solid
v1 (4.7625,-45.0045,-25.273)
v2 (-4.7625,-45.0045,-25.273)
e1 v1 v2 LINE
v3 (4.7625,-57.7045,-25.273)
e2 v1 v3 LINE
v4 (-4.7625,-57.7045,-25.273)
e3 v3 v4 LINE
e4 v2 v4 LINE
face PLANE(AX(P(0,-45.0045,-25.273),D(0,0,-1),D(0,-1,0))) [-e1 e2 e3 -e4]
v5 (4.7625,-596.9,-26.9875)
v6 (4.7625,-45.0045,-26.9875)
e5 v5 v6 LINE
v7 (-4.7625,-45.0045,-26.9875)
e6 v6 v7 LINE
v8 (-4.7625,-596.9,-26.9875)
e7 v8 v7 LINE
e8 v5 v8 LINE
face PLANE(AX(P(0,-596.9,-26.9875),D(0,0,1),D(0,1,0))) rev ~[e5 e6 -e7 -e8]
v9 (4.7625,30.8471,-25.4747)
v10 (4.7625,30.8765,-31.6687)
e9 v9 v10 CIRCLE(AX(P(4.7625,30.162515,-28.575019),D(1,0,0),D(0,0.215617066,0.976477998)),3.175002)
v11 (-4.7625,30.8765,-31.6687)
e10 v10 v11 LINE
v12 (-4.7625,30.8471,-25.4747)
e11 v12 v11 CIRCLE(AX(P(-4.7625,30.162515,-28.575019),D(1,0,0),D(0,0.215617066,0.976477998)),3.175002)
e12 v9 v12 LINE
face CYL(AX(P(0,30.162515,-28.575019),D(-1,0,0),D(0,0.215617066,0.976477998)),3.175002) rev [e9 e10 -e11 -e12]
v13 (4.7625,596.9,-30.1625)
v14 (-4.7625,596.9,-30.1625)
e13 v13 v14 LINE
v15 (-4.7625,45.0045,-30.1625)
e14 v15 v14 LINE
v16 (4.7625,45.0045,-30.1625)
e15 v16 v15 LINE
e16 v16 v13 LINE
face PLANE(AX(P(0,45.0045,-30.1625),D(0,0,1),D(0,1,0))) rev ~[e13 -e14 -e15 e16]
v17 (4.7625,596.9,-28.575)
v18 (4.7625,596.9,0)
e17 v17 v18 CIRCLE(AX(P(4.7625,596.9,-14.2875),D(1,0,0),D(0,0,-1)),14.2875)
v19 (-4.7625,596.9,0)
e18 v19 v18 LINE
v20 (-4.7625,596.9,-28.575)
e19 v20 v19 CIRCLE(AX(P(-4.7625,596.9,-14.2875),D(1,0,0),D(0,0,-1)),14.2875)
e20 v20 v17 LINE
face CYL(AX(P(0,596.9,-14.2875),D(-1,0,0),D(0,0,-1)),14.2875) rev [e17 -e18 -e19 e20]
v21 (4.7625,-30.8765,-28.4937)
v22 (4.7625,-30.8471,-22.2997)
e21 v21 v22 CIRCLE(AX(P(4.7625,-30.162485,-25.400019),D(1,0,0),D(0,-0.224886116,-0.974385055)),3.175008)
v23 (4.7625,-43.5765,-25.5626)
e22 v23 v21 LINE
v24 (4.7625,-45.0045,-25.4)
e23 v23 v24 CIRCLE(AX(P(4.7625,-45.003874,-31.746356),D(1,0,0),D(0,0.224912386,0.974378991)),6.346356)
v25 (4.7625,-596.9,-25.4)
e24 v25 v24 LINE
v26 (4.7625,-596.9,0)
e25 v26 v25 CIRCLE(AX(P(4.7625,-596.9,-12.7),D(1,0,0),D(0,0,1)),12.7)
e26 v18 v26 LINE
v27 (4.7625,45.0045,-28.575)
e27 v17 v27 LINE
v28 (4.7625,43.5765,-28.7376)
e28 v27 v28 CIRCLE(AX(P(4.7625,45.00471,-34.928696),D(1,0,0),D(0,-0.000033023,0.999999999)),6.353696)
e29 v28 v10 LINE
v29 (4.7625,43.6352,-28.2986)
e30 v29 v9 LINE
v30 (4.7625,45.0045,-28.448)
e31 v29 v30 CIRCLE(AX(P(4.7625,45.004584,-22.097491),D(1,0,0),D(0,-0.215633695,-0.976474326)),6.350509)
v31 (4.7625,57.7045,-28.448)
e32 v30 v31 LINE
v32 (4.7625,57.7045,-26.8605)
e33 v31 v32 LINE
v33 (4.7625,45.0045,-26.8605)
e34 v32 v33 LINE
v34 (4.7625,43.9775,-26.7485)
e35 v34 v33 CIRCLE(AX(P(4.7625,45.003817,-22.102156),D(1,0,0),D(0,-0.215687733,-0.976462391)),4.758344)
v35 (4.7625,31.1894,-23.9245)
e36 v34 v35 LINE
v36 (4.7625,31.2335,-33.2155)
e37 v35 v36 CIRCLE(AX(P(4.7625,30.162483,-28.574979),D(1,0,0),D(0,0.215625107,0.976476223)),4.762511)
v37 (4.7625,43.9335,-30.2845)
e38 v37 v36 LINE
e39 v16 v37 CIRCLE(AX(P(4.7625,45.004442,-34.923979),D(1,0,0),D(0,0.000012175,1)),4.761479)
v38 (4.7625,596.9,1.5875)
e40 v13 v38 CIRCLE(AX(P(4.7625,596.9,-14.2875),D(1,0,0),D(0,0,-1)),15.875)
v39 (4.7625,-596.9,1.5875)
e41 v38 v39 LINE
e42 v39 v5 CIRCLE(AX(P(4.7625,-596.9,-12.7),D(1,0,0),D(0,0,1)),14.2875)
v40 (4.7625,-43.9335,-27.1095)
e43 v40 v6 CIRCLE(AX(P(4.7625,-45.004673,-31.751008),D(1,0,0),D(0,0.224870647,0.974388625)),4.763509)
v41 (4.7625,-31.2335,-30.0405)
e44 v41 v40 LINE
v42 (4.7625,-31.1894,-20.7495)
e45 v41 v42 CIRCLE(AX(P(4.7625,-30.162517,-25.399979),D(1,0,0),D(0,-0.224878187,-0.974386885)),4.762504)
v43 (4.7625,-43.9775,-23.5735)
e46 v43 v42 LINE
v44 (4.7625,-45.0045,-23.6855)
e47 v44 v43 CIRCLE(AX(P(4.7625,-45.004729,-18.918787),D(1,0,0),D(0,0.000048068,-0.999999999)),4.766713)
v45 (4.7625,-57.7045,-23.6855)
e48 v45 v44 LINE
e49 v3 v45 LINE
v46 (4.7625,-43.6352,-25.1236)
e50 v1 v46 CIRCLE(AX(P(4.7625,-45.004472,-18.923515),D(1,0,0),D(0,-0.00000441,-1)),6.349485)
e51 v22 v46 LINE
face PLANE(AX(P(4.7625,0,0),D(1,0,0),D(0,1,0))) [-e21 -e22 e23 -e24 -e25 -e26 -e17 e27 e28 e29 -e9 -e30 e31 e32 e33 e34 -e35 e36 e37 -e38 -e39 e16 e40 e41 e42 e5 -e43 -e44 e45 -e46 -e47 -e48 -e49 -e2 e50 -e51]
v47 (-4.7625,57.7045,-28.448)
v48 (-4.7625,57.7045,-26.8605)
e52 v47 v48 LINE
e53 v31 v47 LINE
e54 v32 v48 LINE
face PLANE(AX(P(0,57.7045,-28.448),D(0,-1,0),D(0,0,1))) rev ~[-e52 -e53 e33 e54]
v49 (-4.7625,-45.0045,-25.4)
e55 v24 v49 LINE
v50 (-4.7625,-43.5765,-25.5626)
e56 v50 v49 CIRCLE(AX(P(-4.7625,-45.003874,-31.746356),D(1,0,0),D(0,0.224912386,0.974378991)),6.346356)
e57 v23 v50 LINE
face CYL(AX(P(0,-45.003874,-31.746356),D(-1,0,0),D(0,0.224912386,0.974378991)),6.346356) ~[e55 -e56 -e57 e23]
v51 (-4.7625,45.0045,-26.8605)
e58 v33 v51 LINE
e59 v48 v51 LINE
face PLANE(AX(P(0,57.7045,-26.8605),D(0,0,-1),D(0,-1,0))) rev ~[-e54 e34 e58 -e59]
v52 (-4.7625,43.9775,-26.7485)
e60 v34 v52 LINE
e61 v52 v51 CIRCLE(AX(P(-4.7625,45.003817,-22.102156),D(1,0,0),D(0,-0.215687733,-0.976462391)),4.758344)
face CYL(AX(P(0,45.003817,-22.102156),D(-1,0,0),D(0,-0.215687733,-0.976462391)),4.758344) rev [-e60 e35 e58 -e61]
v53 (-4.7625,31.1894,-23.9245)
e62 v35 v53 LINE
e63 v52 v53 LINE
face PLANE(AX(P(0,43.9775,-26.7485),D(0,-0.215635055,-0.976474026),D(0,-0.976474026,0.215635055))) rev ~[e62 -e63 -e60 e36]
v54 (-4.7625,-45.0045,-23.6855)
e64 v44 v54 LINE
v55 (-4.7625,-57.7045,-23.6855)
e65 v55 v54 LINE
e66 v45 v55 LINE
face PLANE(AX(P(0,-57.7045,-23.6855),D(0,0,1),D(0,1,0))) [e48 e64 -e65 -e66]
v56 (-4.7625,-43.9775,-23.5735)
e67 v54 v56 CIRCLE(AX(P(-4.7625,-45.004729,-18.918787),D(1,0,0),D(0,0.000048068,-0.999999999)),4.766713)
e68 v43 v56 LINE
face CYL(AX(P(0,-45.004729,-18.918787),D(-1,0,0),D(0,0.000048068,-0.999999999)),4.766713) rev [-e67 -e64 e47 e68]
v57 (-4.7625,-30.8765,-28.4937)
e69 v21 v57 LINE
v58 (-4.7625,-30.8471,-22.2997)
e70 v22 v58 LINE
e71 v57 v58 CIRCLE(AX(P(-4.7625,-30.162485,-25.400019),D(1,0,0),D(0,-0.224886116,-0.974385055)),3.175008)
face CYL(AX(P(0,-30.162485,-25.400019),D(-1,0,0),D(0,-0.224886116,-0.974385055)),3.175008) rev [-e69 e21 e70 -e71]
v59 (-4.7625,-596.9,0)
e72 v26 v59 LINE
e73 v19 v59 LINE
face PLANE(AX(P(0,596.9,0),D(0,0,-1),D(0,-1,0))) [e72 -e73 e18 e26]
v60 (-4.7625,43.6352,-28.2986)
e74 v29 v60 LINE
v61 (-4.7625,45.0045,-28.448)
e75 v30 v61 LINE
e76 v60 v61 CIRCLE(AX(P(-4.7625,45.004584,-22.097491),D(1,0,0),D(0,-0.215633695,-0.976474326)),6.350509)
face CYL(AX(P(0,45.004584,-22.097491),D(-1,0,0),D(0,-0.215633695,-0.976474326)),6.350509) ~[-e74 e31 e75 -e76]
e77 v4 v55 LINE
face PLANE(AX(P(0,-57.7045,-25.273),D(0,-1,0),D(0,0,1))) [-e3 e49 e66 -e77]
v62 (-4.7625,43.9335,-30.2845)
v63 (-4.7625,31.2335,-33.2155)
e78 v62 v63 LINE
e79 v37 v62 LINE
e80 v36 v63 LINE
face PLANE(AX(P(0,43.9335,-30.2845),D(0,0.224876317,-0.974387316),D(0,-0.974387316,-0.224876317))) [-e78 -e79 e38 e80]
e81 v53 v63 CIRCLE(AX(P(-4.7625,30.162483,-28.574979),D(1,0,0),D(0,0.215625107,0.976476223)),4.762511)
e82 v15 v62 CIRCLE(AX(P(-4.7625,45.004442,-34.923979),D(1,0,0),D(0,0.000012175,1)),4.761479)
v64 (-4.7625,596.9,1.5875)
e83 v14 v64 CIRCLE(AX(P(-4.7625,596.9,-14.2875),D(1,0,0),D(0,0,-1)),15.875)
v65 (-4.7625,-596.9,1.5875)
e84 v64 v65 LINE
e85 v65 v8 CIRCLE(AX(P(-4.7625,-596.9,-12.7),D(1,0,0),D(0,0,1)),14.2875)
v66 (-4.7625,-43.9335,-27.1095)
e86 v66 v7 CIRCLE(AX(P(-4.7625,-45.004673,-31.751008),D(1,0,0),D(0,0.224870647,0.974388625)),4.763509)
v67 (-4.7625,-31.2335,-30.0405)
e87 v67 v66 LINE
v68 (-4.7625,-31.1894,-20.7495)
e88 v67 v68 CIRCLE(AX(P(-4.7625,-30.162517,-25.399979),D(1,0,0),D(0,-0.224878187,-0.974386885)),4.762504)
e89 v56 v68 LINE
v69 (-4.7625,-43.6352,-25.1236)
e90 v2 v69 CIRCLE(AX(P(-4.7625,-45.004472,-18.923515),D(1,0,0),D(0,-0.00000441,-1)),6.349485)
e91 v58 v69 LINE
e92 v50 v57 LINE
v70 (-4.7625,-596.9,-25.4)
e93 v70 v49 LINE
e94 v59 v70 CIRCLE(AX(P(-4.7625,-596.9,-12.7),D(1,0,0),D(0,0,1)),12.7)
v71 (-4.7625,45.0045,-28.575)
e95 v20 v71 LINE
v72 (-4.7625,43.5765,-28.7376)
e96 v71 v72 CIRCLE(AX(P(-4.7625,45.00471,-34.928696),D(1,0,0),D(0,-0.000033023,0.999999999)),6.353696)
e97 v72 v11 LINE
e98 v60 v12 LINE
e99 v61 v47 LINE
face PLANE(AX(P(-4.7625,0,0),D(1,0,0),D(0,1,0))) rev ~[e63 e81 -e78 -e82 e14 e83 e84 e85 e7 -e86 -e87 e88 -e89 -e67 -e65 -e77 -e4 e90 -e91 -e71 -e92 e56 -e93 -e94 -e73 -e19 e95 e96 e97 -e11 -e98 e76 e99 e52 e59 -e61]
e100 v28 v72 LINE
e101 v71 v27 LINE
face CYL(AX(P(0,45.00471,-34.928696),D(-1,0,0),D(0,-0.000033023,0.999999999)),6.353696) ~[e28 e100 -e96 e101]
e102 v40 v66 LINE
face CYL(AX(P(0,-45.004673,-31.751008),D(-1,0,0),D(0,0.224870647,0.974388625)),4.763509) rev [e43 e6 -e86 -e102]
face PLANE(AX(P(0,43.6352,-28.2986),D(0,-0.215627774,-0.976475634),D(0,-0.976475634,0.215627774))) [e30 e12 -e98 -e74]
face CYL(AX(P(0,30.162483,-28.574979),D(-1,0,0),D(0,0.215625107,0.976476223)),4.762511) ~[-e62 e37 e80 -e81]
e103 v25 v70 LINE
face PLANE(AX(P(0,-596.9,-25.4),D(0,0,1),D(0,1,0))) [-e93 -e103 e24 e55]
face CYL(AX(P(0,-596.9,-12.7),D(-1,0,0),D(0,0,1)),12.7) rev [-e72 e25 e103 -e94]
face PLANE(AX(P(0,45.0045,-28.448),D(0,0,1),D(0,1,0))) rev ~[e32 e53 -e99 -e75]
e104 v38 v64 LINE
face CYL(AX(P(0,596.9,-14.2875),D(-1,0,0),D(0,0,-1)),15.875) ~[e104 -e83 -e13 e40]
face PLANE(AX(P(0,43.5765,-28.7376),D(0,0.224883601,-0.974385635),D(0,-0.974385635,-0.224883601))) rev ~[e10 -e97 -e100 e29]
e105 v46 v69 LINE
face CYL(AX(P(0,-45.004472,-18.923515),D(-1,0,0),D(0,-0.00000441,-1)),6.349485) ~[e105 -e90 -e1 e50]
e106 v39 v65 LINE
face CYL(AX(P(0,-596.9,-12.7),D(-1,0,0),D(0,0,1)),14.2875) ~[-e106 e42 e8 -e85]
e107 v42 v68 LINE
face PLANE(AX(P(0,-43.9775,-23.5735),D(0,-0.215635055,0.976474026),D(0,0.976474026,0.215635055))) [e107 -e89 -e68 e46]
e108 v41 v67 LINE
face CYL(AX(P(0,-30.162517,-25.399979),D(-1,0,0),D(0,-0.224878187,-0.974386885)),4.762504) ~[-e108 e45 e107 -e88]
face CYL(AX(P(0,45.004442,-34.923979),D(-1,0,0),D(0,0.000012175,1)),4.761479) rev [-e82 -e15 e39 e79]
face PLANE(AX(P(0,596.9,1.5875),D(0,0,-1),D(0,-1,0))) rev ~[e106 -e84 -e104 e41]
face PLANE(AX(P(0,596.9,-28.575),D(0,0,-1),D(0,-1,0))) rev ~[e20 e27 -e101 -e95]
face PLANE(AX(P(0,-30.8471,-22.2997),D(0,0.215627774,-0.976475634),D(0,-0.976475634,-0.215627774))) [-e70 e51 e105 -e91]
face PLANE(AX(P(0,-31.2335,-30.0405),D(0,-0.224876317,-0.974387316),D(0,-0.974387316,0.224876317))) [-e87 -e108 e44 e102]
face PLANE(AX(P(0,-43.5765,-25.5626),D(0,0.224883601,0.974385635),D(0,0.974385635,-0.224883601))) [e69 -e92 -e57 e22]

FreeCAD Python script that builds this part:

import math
import FreeCAD as App
import Part
import Sketcher
Q = App.Units.Quantity

doc = App.newDocument("Part")
body = doc.addObject("PartDesign::Body", "Body")

# Sketch on YZ plane
sketch1 = body.newObject("Sketcher::SketchObject", "Sketch")
sketch1.AttachmentSupport = (doc.getObject("YZ_Plane"), [""])
sketch1.MapMode = "FlatFace"
sketch1.addGeometry([
    Part.LineSegment(App.Vector(-596.9, 0, 0), App.Vector(596.9, 0, 0)),  # 0
    Part.ArcOfCircle(Part.Circle(App.Vector(596.9, -14.2875, 0), App.Vector(0, 0, 1), 14.2875), math.radians(-90), math.radians(90)),  # 1
    Part.LineSegment(App.Vector(596.9, -28.575, 0), App.Vector(45.0045, -28.575, 0)),  # 2
    Part.ArcOfCircle(Part.Circle(App.Vector(45.00471, -34.928696, 0), App.Vector(0, 0, 1), 6.353696), math.radians(90.001892), math.radians(102.990182)),  # 3
    Part.LineSegment(App.Vector(43.5765, -28.7376, 0), App.Vector(30.8765, -31.6687, 0)),  # 4
    Part.ArcOfCircle(Part.Circle(App.Vector(30.1625, -28.575, 0), App.Vector(0, 0, 1), 3.174986), math.radians(77.547921), math.radians(282.995834)),  # 5
    Part.LineSegment(App.Vector(30.8471, -25.4747, 0), App.Vector(43.6352, -28.2986, 0)),  # 6
    Part.ArcOfCircle(Part.Circle(App.Vector(45.0045, -22.098, 0), App.Vector(0, 0, 1), 6.349994), math.radians(-102.45296), math.radians(-90)),  # 7
    Part.LineSegment(App.Vector(45.0045, -28.448, 0), App.Vector(57.7045, -28.448, 0)),  # 8
    Part.LineSegment(App.Vector(57.7045, -28.448, 0), App.Vector(57.7045, -26.8605, 0)),  # 9
    Part.LineSegment(App.Vector(57.7045, -26.8605, 0), App.Vector(45.0045, -26.8605, 0)),  # 10
    Part.ArcOfCircle(Part.Circle(App.Vector(45.003817, -22.102156, 0), App.Vector(0, 0, 1), 4.758344), math.radians(-102.455878), math.radians(-89.99177)),  # 11
    Part.LineSegment(App.Vector(43.9775, -26.7485, 0), App.Vector(31.1894, -23.9245, 0)),  # 12
    Part.ArcOfCircle(Part.Circle(App.Vector(30.1625, -28.575, 0), App.Vector(0, 0, 1), 4.762528), math.radians(77.548051), math.radians(282.995969)),  # 13
    Part.LineSegment(App.Vector(31.2335, -33.2155, 0), App.Vector(43.9335, -30.2845, 0)),  # 14
    Part.ArcOfCircle(Part.Circle(App.Vector(45.004442, -34.923979, 0), App.Vector(0, 0, 1), 4.761479), math.radians(89.999302), math.radians(102.998053)),  # 15
    Part.LineSegment(App.Vector(45.0045, -30.1625, 0), App.Vector(596.9, -30.1625, 0)),  # 16
    Part.ArcOfCircle(Part.Circle(App.Vector(596.9, -14.2875, 0), App.Vector(0, 0, 1), 15.875), math.radians(-90), math.radians(90)),  # 17
    Part.LineSegment(App.Vector(596.9, 1.5875, 0), App.Vector(-596.9, 1.5875, 0)),  # 18
    Part.ArcOfCircle(Part.Circle(App.Vector(-596.9, -12.7, 0), App.Vector(0, 0, 1), 14.2875), math.radians(90), math.radians(270)),  # 19
    Part.LineSegment(App.Vector(-596.9, -26.9875, 0), App.Vector(-45.0045, -26.9875, 0)),  # 20
    Part.ArcOfCircle(Part.Circle(App.Vector(-45.004673, -31.751008, 0), App.Vector(0, 0, 1), 4.763509), math.radians(77.004728), math.radians(89.997916)),  # 21
    Part.LineSegment(App.Vector(-43.9335, -27.1095, 0), App.Vector(-31.2335, -30.0405, 0)),  # 22
    Part.ArcOfCircle(Part.Circle(App.Vector(-30.1625, -25.4, 0), App.Vector(0, 0, 1), 4.762487), math.radians(-102.995969), math.radians(102.451949)),  # 23
    Part.LineSegment(App.Vector(-31.1894, -20.7495, 0), App.Vector(-43.9775, -23.5735, 0)),  # 24
    Part.ArcOfCircle(Part.Circle(App.Vector(-45.004729, -18.918787, 0), App.Vector(0, 0, 1), 4.766713), math.radians(-89.997246), math.radians(-77.555106)),  # 25
    Part.LineSegment(App.Vector(-45.0045, -23.6855, 0), App.Vector(-57.7045, -23.6855, 0)),  # 26
    Part.LineSegment(App.Vector(-57.7045, -23.6855, 0), App.Vector(-57.7045, -25.273, 0)),  # 27
    Part.LineSegment(App.Vector(-57.7045, -25.273, 0), App.Vector(-45.0045, -25.273, 0)),  # 28
    Part.ArcOfCircle(Part.Circle(App.Vector(-45.0045, -18.923, 0), App.Vector(0, 0, 1), 6.35), math.radians(-90), math.radians(-77.54704)),  # 29
    Part.LineSegment(App.Vector(-43.6352, -25.1236, 0), App.Vector(-30.8471, -22.2997, 0)),  # 30
    Part.ArcOfCircle(Part.Circle(App.Vector(-30.1625, -25.4, 0), App.Vector(0, 0, 1), 3.175024), math.radians(-102.995834), math.radians(102.452079)),  # 31
    Part.LineSegment(App.Vector(-30.8765, -28.4937, 0), App.Vector(-43.5765, -25.5626, 0)),  # 32
    Part.ArcOfCircle(Part.Circle(App.Vector(-45.003874, -31.746356, 0), App.Vector(0, 0, 1), 6.346356), math.radians(77.002274), math.radians(90.005652)),  # 33
    Part.LineSegment(App.Vector(-45.0045, -25.4, 0), App.Vector(-596.9, -25.4, 0)),  # 34
    Part.ArcOfCircle(Part.Circle(App.Vector(-596.9, -12.7, 0), App.Vector(0, 0, 1), 12.7), math.radians(90), math.radians(270)),  # 35
], False)
sketch1.addConstraint([
    Sketcher.Constraint("Coincident", 0, 2, 1, 2),
    Sketcher.Constraint("Coincident", 1, 1, 2, 1),
    Sketcher.Constraint("Coincident", 2, 2, 3, 1),
    Sketcher.Constraint("Coincident", 3, 2, 4, 1),
    Sketcher.Constraint("Coincident", 4, 2, 5, 2),
    Sketcher.Constraint("Coincident", 5, 1, 6, 1),
    Sketcher.Constraint("Coincident", 6, 2, 7, 1),
    Sketcher.Constraint("Coincident", 7, 2, 8, 1),
    Sketcher.Constraint("Coincident", 8, 2, 9, 1),
    Sketcher.Constraint("Coincident", 9, 2, 10, 1),
    Sketcher.Constraint("Coincident", 10, 2, 11, 2),
    Sketcher.Constraint("Coincident", 11, 1, 12, 1),
    Sketcher.Constraint("Coincident", 12, 2, 13, 1),
    Sketcher.Constraint("Coincident", 13, 2, 14, 1),
    Sketcher.Constraint("Coincident", 14, 2, 15, 2),
    Sketcher.Constraint("Coincident", 15, 1, 16, 1),
    Sketcher.Constraint("Coincident", 16, 2, 17, 1),
    Sketcher.Constraint("Coincident", 17, 2, 18, 1),
    Sketcher.Constraint("Coincident", 18, 2, 19, 1),
    Sketcher.Constraint("Coincident", 19, 2, 20, 1),
    Sketcher.Constraint("Coincident", 20, 2, 21, 2),
    Sketcher.Constraint("Coincident", 21, 1, 22, 1),
    Sketcher.Constraint("Coincident", 22, 2, 23, 1),
    Sketcher.Constraint("Coincident", 23, 2, 24, 1),
    Sketcher.Constraint("Coincident", 24, 2, 25, 2),
    Sketcher.Constraint("Coincident", 25, 1, 26, 1),
    Sketcher.Constraint("Coincident", 26, 2, 27, 1),
    Sketcher.Constraint("Coincident", 27, 2, 28, 1),
    Sketcher.Constraint("Coincident", 28, 2, 29, 1),
    Sketcher.Constraint("Coincident", 29, 2, 30, 1),
    Sketcher.Constraint("Coincident", 30, 2, 31, 2),
    Sketcher.Constraint("Coincident", 31, 1, 32, 1),
    Sketcher.Constraint("Coincident", 32, 2, 33, 1),
    Sketcher.Constraint("Coincident", 33, 2, 34, 1),
    Sketcher.Constraint("Coincident", 34, 2, 35, 2),
    Sketcher.Constraint("Coincident", 35, 1, 0, 1),
    Sketcher.Constraint("Horizontal", 0),
    Sketcher.Constraint("Horizontal", 2),
    Sketcher.Constraint("Horizontal", 8),
    Sketcher.Constraint("Vertical", 9),
    Sketcher.Constraint("Horizontal", 10),
    Sketcher.Constraint("Horizontal", 16),
    Sketcher.Constraint("Horizontal", 18),
    Sketcher.Constraint("Horizontal", 20),
    Sketcher.Constraint("Horizontal", 26),
    Sketcher.Constraint("Vertical", 27),
    Sketcher.Constraint("Horizontal", 28),
    Sketcher.Constraint("Horizontal", 34),
    Sketcher.Constraint("Coincident", 13, 3, 5, 3),
    Sketcher.Constraint("Coincident", 17, 3, 1, 3),
    Sketcher.Constraint("Coincident", 31, 3, 23, 3),
    Sketcher.Constraint("Coincident", 35, 3, 19, 3),
    Sketcher.Constraint("PointOnObject", 0, 2, -1),
    Sketcher.Constraint("Radius", 35, Q("0.5 in")),
    Sketcher.Constraint("DistanceX", 0, 1, 0, 2, Q("47 in")),
    Sketcher.Constraint("DistanceX", 18, 2, 18, 1, Q("47 in")),
    Sketcher.Constraint("Radius", 7, Q("0.25 in")),
    Sketcher.Constraint("Radius", 29, Q("0.25 in")),
    Sketcher.Constraint("DistanceX", 8, 1, 8, 2, Q("0.5 in")),
    Sketcher.Constraint("DistanceX", 10, 2, 10, 1, Q("0.5 in")),
    Sketcher.Constraint("DistanceX", 26, 2, 26, 1, Q("0.5 in")),
    Sketcher.Constraint("DistanceX", 28, 1, 28, 2, Q("0.5 in")),
    Sketcher.Constraint("Radius", 1, Q("0.5625 in")),
    Sketcher.Constraint("Radius", 5, Q("0.125 in")),
    Sketcher.Constraint("Radius", 19, Q("0.5625 in")),
    Sketcher.Constraint("Radius", 31, Q("0.125 in")),
    Sketcher.Constraint("DistanceX", 4, 2, 3, 2, Q("0.5 in")),
    Sketcher.Constraint("DistanceX", 2, 2, 8, 2, Q("0.5 in")),
    Sketcher.Constraint("DistanceX", 7, 3, 9, 2, Q("0.5 in")),
    Sketcher.Constraint("DistanceX", 21, 1, 22, 2, Q("0.5 in")),
    Sketcher.Constraint("DistanceX", 26, 2, 20, 2, Q("0.5 in")),
    Sketcher.Constraint("DistanceX", 26, 2, 29, 3, Q("0.5 in")),
    Sketcher.Constraint("DistanceX", 26, 2, 25, 3, Q("0.5 in")),
    Sketcher.Constraint("DistanceY", 9, 1, 9, 2, Q("0.0625 in")),
    Sketcher.Constraint("DistanceY", 27, 2, 27, 1, Q("0.0625 in")),
    Sketcher.Constraint("DistanceY", 23, 3, -1, 1, Q("1 in")),
    Sketcher.Constraint("Radius", 13, Q("0.1875 in")),
    Sketcher.Constraint("Radius", 23, Q("0.1875 in")),
    Sketcher.Constraint("DistanceY", 5, 3, 1, 3, Q("0.5625 in")),
    Sketcher.Constraint("DistanceX", 7, 3, 3, 3, Q("0 in")),
    Sketcher.Constraint("DistanceX", 15, 3, 3, 3, Q("0 in")),
    Sketcher.Constraint("DistanceX", 23, 3, 5, 3, Q("2.375 in")),
    Sketcher.Constraint("DistanceX", 21, 3, 29, 3, Q("0 in")),
    Sketcher.Constraint("DistanceY", 2, 2, 7, 2, Q("0.005 in")),
    Sketcher.Constraint("DistanceY", 33, 2, 28, 2, Q("0.005 in")),
    Sketcher.Constraint("DistanceX", -1, 1, 1, 3, Q("23.5 in")),
    Sketcher.Constraint("DistanceX", 19, 3, -1, 1, Q("23.5 in")),
    Sketcher.Constraint("DistanceX", -1, 1, 0, 2, Q("23.5 in")),
    Sketcher.Constraint("DistanceX", -1, 1, 1, 1, Q("23.5 in")),
    Sketcher.Constraint("DistanceX", -1, 1, 16, 2, Q("23.5 in")),
    Sketcher.Constraint("DistanceX", -1, 1, 17, 2, Q("23.5 in")),
    Sketcher.Constraint("DistanceX", 19, 2, -1, 1, Q("23.5 in")),
    Sketcher.Constraint("DistanceX", 34, 2, -1, 1, Q("23.5 in")),
    Sketcher.Constraint("Radius", 3, 6.3537),
    Sketcher.Constraint("Radius", 11, 4.7583),
    Sketcher.Constraint("Radius", 15, 4.7615),
    Sketcher.Constraint("Radius", 21, 4.7635),
    Sketcher.Constraint("Radius", 25, 4.7667),
    Sketcher.Constraint("Radius", 33, 6.3464),
    Sketcher.Constraint("DistanceX", -1, 1, 5, 3, Q("1.1875 in")),
    Sketcher.Constraint("Distance", 6, Q("0.5156 in")),
    Sketcher.Constraint("Distance", 12, Q("0.5156 in")),
    Sketcher.Constraint("Distance", 24, Q("0.5156 in")),
    Sketcher.Constraint("Distance", 30, Q("0.5156 in")),
    Sketcher.Constraint("DistanceX", 2, 2, 2, 1, 551.8955),
    Sketcher.Constraint("DistanceX", 16, 1, 16, 2, 551.8955),
    Sketcher.Constraint("DistanceX", 20, 1, 20, 2, 551.8955),
    Sketcher.Constraint("DistanceX", 34, 2, 34, 1, 551.8955),
    Sketcher.Constraint("DistanceX", -1, 1, 11, 3, Q("1.7718 in")),
    Sketcher.Constraint("DistanceX", 33, 3, -1, 1, Q("1.7718 in")),
    Sketcher.Constraint("DistanceX", -1, 1, 3, 2, Q("1.7156 in")),
    Sketcher.Constraint("DistanceX", -1, 1, 11, 1, Q("1.7314 in")),
    Sketcher.Constraint("DistanceY", 13, 2, -1, 1, Q("1.3077 in")),
    Sketcher.Constraint("DistanceY", 14, 2, -1, 1, Q("1.1923 in")),
    Sketcher.Constraint("DistanceY", 21, 1, -1, 1, Q("1.0673 in")),
    Sketcher.Constraint("DistanceY", 23, 2, -1, 1, Q("0.8169 in")),
    Sketcher.Constraint("DistanceX", 31, 1, -1, 1, Q("1.2156 in")),
    Sketcher.Constraint("DistanceX", 32, 2, -1, 1, Q("1.7156 in")),
    Sketcher.Constraint("DistanceX", 3, 2, 6, 2, Q("0.0023 in")),
    Sketcher.Constraint("DistanceX", 28, 2, 29, 2, Q("0.0539 in")),
])
pad1 = body.newObject("PartDesign::Pad", "Pad")
pad1.Profile = sketch1
pad1.Length = Q("0.375 in")
pad1.Midplane = True

doc.recompute()
